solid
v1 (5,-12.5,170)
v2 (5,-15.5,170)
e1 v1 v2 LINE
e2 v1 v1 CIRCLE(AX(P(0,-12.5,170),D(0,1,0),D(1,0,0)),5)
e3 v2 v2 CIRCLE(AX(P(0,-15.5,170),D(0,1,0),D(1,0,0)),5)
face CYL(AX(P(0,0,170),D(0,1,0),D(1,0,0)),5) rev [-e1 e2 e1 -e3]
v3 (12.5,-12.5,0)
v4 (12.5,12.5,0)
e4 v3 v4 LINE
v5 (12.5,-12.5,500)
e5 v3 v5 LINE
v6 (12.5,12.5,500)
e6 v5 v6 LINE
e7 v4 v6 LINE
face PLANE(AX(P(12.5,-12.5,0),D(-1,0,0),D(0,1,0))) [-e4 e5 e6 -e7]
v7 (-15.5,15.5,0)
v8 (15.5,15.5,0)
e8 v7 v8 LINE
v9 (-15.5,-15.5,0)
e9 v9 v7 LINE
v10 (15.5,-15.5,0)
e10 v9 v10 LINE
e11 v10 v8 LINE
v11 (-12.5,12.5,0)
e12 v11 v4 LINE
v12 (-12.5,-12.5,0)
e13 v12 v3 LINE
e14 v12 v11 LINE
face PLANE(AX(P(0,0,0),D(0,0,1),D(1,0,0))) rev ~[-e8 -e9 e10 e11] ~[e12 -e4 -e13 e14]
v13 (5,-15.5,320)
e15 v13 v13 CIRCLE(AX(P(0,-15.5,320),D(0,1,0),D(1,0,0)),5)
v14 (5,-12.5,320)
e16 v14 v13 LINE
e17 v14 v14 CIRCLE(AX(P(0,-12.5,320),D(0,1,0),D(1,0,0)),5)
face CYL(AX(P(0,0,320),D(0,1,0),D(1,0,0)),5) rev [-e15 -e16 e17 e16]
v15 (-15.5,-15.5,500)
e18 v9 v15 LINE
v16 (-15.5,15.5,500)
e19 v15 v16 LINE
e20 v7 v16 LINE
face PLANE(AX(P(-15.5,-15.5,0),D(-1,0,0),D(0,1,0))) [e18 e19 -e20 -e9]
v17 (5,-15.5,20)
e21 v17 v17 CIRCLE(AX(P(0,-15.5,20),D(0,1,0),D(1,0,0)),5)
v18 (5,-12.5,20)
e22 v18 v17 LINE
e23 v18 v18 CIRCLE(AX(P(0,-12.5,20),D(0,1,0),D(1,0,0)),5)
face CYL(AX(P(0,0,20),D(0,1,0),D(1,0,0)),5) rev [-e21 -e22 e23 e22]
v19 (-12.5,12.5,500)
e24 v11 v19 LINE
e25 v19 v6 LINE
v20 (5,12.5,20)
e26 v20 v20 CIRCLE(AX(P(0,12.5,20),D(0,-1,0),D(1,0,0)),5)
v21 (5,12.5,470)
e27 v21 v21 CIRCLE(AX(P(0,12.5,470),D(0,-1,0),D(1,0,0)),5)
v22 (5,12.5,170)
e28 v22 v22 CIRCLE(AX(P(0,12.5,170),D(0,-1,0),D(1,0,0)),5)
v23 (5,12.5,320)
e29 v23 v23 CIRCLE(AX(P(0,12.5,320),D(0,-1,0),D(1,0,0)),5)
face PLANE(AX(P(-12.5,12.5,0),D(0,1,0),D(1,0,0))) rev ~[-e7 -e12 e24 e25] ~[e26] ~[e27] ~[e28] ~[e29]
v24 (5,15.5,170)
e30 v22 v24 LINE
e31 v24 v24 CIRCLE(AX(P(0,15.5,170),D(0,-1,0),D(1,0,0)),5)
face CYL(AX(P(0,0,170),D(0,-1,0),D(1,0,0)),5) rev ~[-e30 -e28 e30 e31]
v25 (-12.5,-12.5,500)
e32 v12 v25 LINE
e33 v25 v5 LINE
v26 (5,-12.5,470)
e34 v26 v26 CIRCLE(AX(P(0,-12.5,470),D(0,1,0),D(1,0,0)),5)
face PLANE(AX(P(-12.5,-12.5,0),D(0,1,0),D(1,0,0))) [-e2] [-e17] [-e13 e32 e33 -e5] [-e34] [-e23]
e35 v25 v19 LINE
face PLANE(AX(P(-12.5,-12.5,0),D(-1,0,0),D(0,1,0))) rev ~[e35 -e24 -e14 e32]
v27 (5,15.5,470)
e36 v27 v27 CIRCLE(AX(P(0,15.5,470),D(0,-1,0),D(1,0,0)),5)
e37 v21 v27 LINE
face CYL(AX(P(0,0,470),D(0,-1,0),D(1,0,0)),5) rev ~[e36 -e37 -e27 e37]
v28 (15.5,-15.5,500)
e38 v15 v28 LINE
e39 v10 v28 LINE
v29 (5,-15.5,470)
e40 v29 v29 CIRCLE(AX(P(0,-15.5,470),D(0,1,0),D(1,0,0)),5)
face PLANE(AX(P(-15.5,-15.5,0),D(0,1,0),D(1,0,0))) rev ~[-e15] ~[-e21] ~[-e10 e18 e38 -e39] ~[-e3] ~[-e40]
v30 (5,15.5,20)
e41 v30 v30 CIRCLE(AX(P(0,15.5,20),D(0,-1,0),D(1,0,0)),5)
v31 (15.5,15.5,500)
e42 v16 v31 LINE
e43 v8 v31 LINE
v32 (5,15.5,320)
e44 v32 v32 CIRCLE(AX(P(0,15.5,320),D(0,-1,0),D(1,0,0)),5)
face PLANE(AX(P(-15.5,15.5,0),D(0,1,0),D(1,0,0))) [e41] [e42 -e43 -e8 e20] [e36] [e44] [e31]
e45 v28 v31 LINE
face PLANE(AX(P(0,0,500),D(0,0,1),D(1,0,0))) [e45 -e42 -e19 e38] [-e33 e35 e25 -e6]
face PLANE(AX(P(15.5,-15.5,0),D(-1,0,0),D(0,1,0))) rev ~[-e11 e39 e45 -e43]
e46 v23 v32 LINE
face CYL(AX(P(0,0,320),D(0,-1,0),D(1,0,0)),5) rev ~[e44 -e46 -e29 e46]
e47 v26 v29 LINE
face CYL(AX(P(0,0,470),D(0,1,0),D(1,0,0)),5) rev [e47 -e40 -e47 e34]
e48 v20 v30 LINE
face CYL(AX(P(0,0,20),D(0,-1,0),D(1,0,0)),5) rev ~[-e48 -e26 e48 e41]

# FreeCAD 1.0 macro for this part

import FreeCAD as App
import Part
import Sketcher

V = App.Vector
Q = App.Units.Quantity


def add_polygon(sketch, points):
    """Adds a closed chain of lines whose ends are joined by coincident constraints."""
    first, n = sketch.GeometryCount, len(points)
    for a, b in zip(points, points[1:] + points[:1]):
        sketch.addGeometry(Part.LineSegment(App.Vector(*a, 0), App.Vector(*b, 0)), False)
    for i in range(n):
        sketch.addConstraint(Sketcher.Constraint("Coincident", first + i, 2, first + (i + 1) % n, 1))

doc = App.newDocument("Part")
body = doc.addObject("PartDesign::Body", "Body")

sketch1 = body.newObject("Sketcher::SketchObject", "Sketch")
sketch1.AttachmentSupport = (doc.getObject("XY_Plane"), [""])
sketch1.MapMode = "FlatFace"
add_polygon(sketch1, [(-16, 16), (-16, -16), (16, -16), (16, 16)])
add_polygon(sketch1, [(12, -12), (-12, -12), (-12, 12), (12, 12)])
sketch1.addConstraint([
    Sketcher.Constraint("Vertical", 0),
    Sketcher.Constraint("Horizontal", 1),
    Sketcher.Constraint("Vertical", 2),
    Sketcher.Constraint("Horizontal", 3),
    Sketcher.Constraint("Horizontal", 4),
    Sketcher.Constraint("Vertical", 5),
    Sketcher.Constraint("Horizontal", 6),
    Sketcher.Constraint("Vertical", 7),
    Sketcher.Constraint("Symmetric", 0, 2, 2, 2, -1, 1),
    Sketcher.Constraint("Symmetric", 4, 2, 6, 2, -1, 1),
    Sketcher.Constraint("Equal", 3, 0),
    Sketcher.Constraint("Equal", 6, 5),
    Sketcher.Constraint("DistanceX", 1, 1, 1, 2, Q("31 mm")),
    Sketcher.Constraint("DistanceX", 4, 2, 4, 1, Q("25 mm")),
])
pad1 = body.newObject("PartDesign::Pad", "Pad")
pad1.Profile = sketch1
pad1.Length = 500

sketch2 = body.newObject("Sketcher::SketchObject", "Sketch001")
sketch2.AttachmentSupport = (doc.getObject("XZ_Plane"), [""])
sketch2.MapMode = "FlatFace"
sketch2.addGeometry([
    Part.Circle(V(0, 470, 0), V(0, 0, 1), 5),
    Part.Circle(V(0, 320, 0), V(0, 0, 1), 5),
    Part.Circle(V(0, 170, 0), V(0, 0, 1), 5),
    Part.Circle(V(0, 20, 0), V(0, 0, 1), 5),
], False)
sketch2.addConstraint([
    Sketcher.Constraint("Equal", 0, 1),
    Sketcher.Constraint("Equal", 1, 2),
    Sketcher.Constraint("Equal", 2, 3),
    Sketcher.Constraint("PointOnObject", 0, 3, -2),
    Sketcher.Constraint("PointOnObject", 1, 3, -2),
    Sketcher.Constraint("PointOnObject", 2, 3, -2),
    Sketcher.Constraint("PointOnObject", 3, 3, -2),
    Sketcher.Constraint("Diameter", 0, Q("10 mm")),
    Sketcher.Constraint("DistanceY", -1, 1, 0, 3, Q("470 mm")),
    Sketcher.Constraint("DistanceY", -1, 1, 1, 3, Q("320 mm")),
    Sketcher.Constraint("DistanceY", -1, 1, 2, 3, Q("170 mm")),
    Sketcher.Constraint("DistanceY", -1, 1, 3, 3, Q("20 mm")),
])
pocket1 = body.newObject("PartDesign::Pocket", "Pocket")
pocket1.Profile = sketch2
pocket1.Type = "ThroughAll"
pocket1.Midplane = True

doc.recompute()
